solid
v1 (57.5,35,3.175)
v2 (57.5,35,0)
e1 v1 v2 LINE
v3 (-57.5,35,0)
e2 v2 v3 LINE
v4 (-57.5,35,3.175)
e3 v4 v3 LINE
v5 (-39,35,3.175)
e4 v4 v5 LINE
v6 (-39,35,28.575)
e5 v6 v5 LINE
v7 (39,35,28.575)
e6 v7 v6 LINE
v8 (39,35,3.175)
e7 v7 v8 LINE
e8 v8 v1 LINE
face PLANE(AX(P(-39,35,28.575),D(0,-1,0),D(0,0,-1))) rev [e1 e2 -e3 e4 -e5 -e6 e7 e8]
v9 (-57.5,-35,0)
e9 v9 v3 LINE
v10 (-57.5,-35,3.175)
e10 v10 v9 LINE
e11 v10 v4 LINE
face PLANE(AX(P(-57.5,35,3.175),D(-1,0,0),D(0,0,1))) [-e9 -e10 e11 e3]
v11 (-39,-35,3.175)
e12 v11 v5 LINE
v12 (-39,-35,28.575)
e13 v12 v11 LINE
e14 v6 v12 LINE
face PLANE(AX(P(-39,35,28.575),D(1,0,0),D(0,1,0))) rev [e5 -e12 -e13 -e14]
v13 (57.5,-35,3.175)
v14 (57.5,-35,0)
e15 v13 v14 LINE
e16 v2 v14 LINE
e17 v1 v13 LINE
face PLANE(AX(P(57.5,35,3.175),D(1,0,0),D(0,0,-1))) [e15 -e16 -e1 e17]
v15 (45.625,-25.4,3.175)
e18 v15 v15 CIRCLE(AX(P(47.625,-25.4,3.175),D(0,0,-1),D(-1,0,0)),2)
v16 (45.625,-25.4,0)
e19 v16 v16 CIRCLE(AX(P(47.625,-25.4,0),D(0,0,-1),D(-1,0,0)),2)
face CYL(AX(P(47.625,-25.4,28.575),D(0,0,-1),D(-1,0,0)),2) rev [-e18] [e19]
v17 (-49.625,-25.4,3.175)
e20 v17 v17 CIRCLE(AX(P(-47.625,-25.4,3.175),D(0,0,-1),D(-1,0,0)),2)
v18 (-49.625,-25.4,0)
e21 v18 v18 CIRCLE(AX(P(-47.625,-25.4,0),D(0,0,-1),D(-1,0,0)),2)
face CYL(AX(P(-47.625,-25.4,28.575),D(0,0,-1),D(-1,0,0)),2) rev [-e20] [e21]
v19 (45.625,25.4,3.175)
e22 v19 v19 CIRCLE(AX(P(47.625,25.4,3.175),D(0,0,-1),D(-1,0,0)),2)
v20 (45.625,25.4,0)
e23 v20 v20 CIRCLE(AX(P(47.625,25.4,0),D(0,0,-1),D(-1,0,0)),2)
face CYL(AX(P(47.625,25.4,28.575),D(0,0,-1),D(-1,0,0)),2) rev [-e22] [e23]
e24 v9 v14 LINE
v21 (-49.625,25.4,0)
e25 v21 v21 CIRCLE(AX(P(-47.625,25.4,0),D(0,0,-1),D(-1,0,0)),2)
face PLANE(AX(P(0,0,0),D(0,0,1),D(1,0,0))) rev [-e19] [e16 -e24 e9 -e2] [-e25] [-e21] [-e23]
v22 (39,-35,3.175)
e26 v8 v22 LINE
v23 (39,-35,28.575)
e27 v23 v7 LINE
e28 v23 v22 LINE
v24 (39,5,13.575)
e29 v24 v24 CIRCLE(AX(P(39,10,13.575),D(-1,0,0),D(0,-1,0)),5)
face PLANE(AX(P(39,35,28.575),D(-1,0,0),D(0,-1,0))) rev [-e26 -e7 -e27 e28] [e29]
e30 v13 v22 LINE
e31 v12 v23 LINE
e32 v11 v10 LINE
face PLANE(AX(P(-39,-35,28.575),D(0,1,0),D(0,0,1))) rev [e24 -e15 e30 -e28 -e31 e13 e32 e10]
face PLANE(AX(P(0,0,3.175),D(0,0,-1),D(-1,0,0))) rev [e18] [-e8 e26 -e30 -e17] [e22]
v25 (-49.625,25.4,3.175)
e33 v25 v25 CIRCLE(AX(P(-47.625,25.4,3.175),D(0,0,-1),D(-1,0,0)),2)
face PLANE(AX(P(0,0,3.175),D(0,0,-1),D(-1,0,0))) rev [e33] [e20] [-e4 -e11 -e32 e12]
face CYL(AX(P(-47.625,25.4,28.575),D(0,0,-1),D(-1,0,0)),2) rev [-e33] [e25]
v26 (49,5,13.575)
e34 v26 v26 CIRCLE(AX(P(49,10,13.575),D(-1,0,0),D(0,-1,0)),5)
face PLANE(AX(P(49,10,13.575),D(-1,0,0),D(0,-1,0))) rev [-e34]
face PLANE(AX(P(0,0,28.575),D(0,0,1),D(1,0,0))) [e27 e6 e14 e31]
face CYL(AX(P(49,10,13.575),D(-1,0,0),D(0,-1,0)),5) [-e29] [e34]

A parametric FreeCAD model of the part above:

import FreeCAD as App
import Part
import Sketcher

V = App.Vector


def add_polygon(sketch, points):
    """Adds a closed chain of lines whose ends are joined by coincident constraints."""
    first, n = sketch.GeometryCount, len(points)
    for a, b in zip(points, points[1:] + points[:1]):
        sketch.addGeometry(Part.LineSegment(App.Vector(*a, 0), App.Vector(*b, 0)), False)
    for i in range(n):
        sketch.addConstraint(Sketcher.Constraint("Coincident", first + i, 2, first + (i + 1) % n, 1))

doc = App.newDocument("Part")
body = doc.addObject("PartDesign::Body", "Body")

# Sketch on XY plane
sketch1 = body.newObject("Sketcher::SketchObject", "Sketch")
sketch1.AttachmentSupport = (doc.getObject("XY_Plane"), [""])
sketch1.MapMode = "FlatFace"
add_polygon(sketch1, [(-39, 35), (-39, -35), (39, -35), (39, 35)])  # lines 0-3
sketch1.addConstraint(Sketcher.Constraint("Vertical", 0))
sketch1.addConstraint(Sketcher.Constraint("Horizontal", 1))
sketch1.addConstraint(Sketcher.Constraint("Vertical", 2))
sketch1.addConstraint(Sketcher.Constraint("Horizontal", 3))
sketch1.addConstraint(Sketcher.Constraint("Symmetric", 0, 2, 2, 2, -1, 1))
sketch1.addConstraint(Sketcher.Constraint("DistanceX", 1, 1, 1, 2, 78.0))
sketch1.addConstraint(Sketcher.Constraint("DistanceY", 0, 2, 0, 1, 70.0))
pad1 = body.newObject("PartDesign::Pad", "Pad")
pad1.Profile = sketch1
pad1.Length = 28.575

# Sketch on XY plane
sketch2 = body.newObject("Sketcher::SketchObject", "Sketch001")
sketch2.AttachmentSupport = (doc.getObject("XY_Plane"), [""])
sketch2.MapMode = "FlatFace"
add_polygon(sketch2, [(58, 35), (58, -35), (-58, -35), (-58, 35)])  # lines 0-3
sketch2.addConstraint(Sketcher.Constraint("Vertical", 0))
sketch2.addConstraint(Sketcher.Constraint("Horizontal", 1))
sketch2.addConstraint(Sketcher.Constraint("Vertical", 2))
sketch2.addConstraint(Sketcher.Constraint("Horizontal", 3))
sketch2.addConstraint(Sketcher.Constraint("Symmetric", 0, 2, 2, 2, -1, 1))
sketch2.addConstraint(Sketcher.Constraint("DistanceX", 1, 2, 1, 1, 115.0))
sketch2.addConstraint(Sketcher.Constraint("DistanceY", 0, 2, 0, 1, 70.0))
pad2 = body.newObject("PartDesign::Pad", "Pad001")
pad2.Profile = sketch2
pad2.Length = 3.175

# Sketch on XY plane
sketch3 = body.newObject("Sketcher::SketchObject", "Sketch002")
sketch3.AttachmentSupport = (doc.getObject("XY_Plane"), [""])
sketch3.MapMode = "FlatFace"
sketch3.addGeometry(Part.Circle(V(47.6, 25.4, 0), V(0, 0, 1), 2), False)
sketch3.addGeometry(Part.Circle(V(-47.6, 25.4, 0), V(0, 0, 1), 2), False)
sketch3.addGeometry(Part.Circle(V(-47.6, -25.4, 0), V(0, 0, 1), 2), False)
sketch3.addGeometry(Part.Circle(V(47.6, -25.4, 0), V(0, 0, 1), 2), False)
sketch3.addConstraint(Sketcher.Constraint("Equal", 0, 1))
sketch3.addConstraint(Sketcher.Constraint("Equal", 1, 2))
sketch3.addConstraint(Sketcher.Constraint("Equal", 2, 3))
sketch3.addConstraint(Sketcher.Constraint("Symmetric", 0, 3, 2, 3, -1, 1))
sketch3.addConstraint(Sketcher.Constraint("Symmetric", 1, 3, 3, 3, -1, 1))
sketch3.addConstraint(Sketcher.Constraint("Symmetric", 0, 3, 1, 3, -2))
sketch3.addConstraint(Sketcher.Constraint("Diameter", 0, 4.0))
sketch3.addConstraint(Sketcher.Constraint("DistanceY", -1, 1, 0, 3, 25.4))
sketch3.addConstraint(Sketcher.Constraint("DistanceX", 1, 3, 0, 3, 95.25))
pocket1 = body.newObject("PartDesign::Pocket", "Pocket")
pocket1.Profile = sketch3
pocket1.Type = "ThroughAll"
pocket1.Reversed = True

# Sketch on YZ plane
sketch4 = body.newObject("Sketcher::SketchObject", "Sketch003")
sketch4.AttachmentSupport = (doc.getObject("YZ_Plane"), [""])
sketch4.MapMode = "FlatFace"
sketch4.AttachmentOffset = App.Placement(V(0, 0, 39), App.Rotation())
sketch4.addGeometry(Part.Circle(V(10, 14, 0), V(0, 0, 1), 5), False)
sketch4.addConstraint(Sketcher.Constraint("Diameter", 0, 10.0))
sketch4.addConstraint(Sketcher.Constraint("DistanceX", -1, 1, 0, 3, 10.0))
sketch4.addConstraint(Sketcher.Constraint("DistanceY", -1, 1, 0, 3, 13.575))
pad3 = body.newObject("PartDesign::Pad", "Pad002")
pad3.Profile = sketch4
pad3.Length = 10

doc.recompute()
